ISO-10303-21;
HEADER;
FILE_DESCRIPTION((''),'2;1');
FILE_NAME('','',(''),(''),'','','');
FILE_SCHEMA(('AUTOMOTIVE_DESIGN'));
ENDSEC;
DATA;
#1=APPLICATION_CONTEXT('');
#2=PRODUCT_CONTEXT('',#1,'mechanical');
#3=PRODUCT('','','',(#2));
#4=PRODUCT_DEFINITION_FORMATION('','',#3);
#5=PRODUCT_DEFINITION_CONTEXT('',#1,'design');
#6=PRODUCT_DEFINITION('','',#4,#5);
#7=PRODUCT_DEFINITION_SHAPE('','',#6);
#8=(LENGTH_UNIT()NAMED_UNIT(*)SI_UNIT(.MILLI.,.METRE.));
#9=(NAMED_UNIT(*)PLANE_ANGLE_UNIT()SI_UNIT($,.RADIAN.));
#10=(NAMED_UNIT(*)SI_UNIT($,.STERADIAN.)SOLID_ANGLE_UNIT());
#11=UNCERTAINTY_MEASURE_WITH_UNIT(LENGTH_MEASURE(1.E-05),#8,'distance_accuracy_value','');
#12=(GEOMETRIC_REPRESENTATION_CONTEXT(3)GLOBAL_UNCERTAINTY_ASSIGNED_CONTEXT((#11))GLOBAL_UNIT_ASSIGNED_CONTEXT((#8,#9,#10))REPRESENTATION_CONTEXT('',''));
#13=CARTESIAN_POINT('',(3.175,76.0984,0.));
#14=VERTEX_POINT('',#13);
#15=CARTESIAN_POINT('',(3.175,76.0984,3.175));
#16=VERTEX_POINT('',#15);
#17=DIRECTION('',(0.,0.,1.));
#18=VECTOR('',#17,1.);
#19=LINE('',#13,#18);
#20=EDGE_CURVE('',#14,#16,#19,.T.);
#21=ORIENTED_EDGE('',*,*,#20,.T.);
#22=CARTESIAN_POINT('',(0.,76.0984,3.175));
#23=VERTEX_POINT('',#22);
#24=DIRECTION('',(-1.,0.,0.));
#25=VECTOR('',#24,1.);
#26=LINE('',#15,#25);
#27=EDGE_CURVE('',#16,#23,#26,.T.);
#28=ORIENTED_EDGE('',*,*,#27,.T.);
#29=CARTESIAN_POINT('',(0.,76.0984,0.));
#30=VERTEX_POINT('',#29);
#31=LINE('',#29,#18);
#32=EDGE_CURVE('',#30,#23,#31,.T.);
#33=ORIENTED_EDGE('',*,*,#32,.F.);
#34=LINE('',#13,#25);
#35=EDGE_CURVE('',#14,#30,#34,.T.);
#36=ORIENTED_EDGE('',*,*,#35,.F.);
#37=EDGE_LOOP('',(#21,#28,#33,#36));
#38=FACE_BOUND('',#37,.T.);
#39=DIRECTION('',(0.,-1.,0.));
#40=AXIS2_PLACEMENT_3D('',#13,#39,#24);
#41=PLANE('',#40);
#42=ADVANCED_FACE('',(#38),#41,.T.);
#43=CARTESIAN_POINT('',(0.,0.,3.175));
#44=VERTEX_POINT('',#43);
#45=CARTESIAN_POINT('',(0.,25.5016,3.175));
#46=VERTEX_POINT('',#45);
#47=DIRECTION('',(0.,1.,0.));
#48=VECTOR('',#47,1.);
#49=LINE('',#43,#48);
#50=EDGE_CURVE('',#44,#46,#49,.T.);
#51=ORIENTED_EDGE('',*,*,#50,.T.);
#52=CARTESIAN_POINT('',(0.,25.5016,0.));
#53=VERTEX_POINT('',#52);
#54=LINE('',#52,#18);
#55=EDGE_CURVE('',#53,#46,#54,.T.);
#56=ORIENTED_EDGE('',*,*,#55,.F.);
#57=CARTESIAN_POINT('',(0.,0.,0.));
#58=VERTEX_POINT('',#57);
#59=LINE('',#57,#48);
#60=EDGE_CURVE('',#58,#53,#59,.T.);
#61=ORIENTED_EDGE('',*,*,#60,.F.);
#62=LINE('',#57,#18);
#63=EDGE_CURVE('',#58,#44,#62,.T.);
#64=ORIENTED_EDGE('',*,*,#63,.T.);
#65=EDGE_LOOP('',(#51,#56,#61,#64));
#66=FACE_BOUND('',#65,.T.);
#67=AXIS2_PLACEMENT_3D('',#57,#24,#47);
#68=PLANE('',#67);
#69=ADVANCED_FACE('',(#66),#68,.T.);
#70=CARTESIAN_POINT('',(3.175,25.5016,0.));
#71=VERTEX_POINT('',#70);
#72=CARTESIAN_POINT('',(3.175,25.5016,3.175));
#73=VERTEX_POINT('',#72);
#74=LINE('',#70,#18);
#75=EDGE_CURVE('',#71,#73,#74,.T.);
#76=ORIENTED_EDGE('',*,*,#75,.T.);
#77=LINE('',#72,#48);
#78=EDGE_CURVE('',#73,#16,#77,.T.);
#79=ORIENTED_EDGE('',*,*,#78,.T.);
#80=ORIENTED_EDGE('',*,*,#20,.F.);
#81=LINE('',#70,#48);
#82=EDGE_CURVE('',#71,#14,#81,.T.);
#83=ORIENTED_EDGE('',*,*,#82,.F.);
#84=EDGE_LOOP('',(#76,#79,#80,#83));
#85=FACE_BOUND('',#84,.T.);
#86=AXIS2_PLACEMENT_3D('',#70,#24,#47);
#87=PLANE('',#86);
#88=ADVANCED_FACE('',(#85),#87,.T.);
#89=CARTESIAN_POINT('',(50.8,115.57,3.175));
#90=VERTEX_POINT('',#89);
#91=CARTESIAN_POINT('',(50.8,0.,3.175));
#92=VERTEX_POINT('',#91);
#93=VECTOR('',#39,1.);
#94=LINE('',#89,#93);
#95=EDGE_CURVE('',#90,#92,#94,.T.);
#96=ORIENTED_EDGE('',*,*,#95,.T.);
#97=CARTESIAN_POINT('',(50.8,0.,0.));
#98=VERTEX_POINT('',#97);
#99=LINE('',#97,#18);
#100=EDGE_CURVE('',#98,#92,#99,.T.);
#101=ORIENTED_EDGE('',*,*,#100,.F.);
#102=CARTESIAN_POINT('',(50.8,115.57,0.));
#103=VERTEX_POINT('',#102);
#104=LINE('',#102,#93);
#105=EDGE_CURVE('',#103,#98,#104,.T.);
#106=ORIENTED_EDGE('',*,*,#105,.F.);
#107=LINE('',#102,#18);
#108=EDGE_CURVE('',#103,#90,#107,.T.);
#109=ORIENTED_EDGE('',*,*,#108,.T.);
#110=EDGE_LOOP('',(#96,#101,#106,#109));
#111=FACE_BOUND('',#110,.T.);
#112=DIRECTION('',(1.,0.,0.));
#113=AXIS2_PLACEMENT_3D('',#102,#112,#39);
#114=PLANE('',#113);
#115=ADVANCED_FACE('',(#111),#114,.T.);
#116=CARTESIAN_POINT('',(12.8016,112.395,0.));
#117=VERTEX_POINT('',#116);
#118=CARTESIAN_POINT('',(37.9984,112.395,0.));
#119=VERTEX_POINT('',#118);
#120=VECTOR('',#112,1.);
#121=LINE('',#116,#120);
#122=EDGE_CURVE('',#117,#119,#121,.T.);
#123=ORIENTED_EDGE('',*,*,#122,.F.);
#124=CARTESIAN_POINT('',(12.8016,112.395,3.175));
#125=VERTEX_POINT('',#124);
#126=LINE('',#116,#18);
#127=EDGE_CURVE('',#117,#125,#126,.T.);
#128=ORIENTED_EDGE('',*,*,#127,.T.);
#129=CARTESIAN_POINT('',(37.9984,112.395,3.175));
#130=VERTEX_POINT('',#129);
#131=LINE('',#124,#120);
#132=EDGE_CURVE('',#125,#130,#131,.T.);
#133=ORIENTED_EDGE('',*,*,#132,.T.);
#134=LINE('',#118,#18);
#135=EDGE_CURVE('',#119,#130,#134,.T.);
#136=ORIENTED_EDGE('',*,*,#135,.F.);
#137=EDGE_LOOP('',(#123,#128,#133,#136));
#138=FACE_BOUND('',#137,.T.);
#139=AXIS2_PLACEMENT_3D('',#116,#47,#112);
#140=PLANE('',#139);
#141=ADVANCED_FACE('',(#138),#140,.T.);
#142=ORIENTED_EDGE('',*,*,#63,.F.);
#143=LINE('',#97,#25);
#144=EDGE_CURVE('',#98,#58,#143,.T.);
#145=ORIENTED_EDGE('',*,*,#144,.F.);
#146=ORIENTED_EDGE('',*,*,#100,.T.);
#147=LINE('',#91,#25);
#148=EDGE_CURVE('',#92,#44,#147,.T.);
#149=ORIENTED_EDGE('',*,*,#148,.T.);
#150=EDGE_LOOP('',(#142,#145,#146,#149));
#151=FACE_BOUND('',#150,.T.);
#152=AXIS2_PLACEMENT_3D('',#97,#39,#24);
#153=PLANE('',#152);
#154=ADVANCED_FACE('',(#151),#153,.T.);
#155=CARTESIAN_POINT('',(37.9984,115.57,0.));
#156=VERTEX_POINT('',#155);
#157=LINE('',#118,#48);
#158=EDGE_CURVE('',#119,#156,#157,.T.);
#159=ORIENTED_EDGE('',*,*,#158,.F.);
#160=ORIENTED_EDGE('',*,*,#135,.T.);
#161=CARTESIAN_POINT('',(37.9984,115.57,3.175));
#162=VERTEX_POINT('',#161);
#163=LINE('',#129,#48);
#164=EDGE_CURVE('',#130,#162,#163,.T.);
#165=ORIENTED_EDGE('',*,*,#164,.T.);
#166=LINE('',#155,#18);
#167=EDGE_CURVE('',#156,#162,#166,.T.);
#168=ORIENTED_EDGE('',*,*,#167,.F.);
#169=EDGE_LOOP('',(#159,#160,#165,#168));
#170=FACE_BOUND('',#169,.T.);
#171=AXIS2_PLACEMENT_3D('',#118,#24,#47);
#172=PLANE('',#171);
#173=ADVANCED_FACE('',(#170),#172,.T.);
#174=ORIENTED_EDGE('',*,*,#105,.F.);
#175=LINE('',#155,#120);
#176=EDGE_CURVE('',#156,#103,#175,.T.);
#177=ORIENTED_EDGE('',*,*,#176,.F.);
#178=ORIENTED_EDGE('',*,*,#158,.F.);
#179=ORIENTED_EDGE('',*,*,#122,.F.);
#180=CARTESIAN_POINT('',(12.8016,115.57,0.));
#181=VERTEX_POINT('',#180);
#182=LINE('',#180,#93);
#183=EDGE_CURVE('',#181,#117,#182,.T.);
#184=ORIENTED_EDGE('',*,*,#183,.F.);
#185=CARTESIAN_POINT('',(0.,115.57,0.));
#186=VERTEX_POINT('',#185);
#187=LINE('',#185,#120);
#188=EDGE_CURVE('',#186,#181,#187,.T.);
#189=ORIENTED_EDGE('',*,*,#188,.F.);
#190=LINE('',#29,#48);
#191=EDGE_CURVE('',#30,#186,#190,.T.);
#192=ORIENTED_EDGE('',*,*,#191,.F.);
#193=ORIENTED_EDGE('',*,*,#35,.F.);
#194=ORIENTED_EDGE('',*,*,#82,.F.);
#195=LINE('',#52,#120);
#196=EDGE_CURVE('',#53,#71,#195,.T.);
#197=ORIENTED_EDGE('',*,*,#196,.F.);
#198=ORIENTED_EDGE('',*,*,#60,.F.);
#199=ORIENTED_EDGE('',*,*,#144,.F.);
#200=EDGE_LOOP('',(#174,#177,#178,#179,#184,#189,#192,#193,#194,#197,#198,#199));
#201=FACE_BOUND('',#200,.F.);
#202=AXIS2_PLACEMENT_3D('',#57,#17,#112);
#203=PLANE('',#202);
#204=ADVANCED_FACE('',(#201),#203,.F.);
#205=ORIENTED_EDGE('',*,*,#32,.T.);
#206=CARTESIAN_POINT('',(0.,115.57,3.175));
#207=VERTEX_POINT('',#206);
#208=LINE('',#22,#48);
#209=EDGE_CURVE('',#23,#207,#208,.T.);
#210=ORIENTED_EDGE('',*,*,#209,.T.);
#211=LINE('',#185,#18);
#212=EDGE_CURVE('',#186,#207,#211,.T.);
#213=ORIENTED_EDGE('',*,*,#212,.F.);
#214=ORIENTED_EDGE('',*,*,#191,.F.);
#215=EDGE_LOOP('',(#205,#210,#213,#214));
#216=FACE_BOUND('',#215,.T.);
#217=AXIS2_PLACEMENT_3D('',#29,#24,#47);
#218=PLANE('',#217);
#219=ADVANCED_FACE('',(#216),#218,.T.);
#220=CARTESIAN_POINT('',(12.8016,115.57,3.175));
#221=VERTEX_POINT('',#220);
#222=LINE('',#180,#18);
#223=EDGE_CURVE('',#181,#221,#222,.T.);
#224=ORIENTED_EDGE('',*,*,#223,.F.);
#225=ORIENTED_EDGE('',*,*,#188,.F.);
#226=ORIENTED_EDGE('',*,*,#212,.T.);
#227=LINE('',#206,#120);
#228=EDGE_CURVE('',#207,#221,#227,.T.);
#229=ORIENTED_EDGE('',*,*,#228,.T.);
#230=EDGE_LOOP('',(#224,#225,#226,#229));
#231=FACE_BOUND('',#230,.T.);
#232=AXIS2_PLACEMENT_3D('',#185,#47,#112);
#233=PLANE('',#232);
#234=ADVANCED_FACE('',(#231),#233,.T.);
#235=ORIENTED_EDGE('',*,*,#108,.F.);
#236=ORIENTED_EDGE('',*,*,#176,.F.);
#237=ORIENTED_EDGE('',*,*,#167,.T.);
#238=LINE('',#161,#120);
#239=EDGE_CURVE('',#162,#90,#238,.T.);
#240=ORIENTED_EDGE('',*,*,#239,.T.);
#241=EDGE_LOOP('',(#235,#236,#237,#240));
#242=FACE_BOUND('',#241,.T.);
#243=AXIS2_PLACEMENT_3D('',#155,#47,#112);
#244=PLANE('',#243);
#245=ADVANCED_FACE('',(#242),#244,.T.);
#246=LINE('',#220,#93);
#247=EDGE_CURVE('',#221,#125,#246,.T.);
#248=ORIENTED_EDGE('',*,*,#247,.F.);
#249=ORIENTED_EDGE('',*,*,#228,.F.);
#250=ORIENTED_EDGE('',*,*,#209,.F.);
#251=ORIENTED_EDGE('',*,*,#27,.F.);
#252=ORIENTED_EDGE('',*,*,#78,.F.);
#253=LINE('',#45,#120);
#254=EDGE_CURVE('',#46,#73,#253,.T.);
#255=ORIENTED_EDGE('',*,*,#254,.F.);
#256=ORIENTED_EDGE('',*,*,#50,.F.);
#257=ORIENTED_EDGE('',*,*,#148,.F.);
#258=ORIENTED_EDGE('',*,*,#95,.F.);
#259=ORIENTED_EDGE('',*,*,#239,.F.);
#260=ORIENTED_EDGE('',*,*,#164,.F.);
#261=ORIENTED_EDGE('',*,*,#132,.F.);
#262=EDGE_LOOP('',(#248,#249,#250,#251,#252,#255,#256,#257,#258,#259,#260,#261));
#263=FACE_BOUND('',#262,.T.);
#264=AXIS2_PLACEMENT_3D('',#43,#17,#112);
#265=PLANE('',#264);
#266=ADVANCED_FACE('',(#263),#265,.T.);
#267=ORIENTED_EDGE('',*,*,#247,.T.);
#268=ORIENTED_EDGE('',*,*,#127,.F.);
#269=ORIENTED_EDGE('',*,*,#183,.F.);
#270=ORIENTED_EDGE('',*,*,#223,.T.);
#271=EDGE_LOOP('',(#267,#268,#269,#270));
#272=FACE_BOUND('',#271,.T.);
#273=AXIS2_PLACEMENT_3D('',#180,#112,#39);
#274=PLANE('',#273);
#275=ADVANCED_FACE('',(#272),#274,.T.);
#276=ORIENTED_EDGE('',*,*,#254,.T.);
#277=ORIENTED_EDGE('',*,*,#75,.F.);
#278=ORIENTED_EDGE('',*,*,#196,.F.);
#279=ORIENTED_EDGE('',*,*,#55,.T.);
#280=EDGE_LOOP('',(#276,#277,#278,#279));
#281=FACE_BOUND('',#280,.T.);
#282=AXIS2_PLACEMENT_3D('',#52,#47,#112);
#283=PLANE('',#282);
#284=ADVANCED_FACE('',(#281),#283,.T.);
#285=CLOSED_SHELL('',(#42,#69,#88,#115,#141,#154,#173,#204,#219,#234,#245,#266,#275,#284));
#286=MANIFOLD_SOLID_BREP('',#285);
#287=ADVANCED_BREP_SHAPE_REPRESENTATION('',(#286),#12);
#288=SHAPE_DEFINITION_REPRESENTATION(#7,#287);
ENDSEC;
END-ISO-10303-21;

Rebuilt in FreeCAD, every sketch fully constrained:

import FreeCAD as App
import Part
import Sketcher
Q = App.Units.Quantity


def add_polygon(sketch, points):
    """Adds a closed chain of lines whose ends are joined by coincident constraints."""
    first, n = sketch.GeometryCount, len(points)
    for a, b in zip(points, points[1:] + points[:1]):
        sketch.addGeometry(Part.LineSegment(App.Vector(*a, 0), App.Vector(*b, 0)), False)
    for i in range(n):
        sketch.addConstraint(Sketcher.Constraint("Coincident", first + i, 2, first + (i + 1) % n, 1))

doc = App.newDocument("Part")
body = doc.addObject("PartDesign::Body", "Body")

sketch1 = body.newObject("Sketcher::SketchObject", "Sketch")
sketch1.AttachmentSupport = (doc.getObject("XY_Plane"), [""])
sketch1.MapMode = "FlatFace"
add_polygon(sketch1, [(50.8, 0), (50.8, 115.57), (37.9984, 115.57), (37.9984, 112.395), (12.8016, 112.395), (12.8016, 115.57), (0, 115.57), (0, 76.0984), (3.175, 76.0984), (3.175, 25.5016), (0, 25.5016), (0, 0)])
sketch1.addConstraint(Sketcher.Constraint("Vertical", 0))
sketch1.addConstraint(Sketcher.Constraint("Horizontal", 1))
sketch1.addConstraint(Sketcher.Constraint("Vertical", 2))
sketch1.addConstraint(Sketcher.Constraint("Horizontal", 3))
sketch1.addConstraint(Sketcher.Constraint("Vertical", 4))
sketch1.addConstraint(Sketcher.Constraint("Horizontal", 5))
sketch1.addConstraint(Sketcher.Constraint("Vertical", 6))
sketch1.addConstraint(Sketcher.Constraint("Horizontal", 7))
sketch1.addConstraint(Sketcher.Constraint("Vertical", 8))
sketch1.addConstraint(Sketcher.Constraint("Horizontal", 9))
sketch1.addConstraint(Sketcher.Constraint("Vertical", 10))
sketch1.addConstraint(Sketcher.Constraint("Horizontal", 11))
sketch1.addConstraint(Sketcher.Constraint("Coincident", 10, 2, -1, 1))
sketch1.addConstraint(Sketcher.Constraint("PointOnObject", 5, 2, -2))
sketch1.addConstraint(Sketcher.Constraint("Horizontal", 1, 2, 4, 2))
sketch1.addConstraint(Sketcher.Constraint("Equal", 1, 5))
sketch1.addConstraint(Sketcher.Constraint("Equal", 9, 2))
sketch1.addConstraint(Sketcher.Constraint("DistanceX", 11, 1, 11, 2, Q("2 in")))
sketch1.addConstraint(Sketcher.Constraint("DistanceY", 0, 1, 0, 2, Q("4.55 in")))
sketch1.addConstraint(Sketcher.Constraint("DistanceX", 1, 2, 1, 1, Q("0.504 in")))
sketch1.addConstraint(Sketcher.Constraint("DistanceX", 7, 1, 7, 2, Q("0.125 in")))
sketch1.addConstraint(Sketcher.Constraint("DistanceY", 8, 2, 8, 1, Q("1.992 in")))
sketch1.addConstraint(Sketcher.Constraint("DistanceY", 10, 2, 10, 1, Q("1.004 in")))
pad1 = body.newObject("PartDesign::Pad", "Pad")
pad1.Profile = sketch1
pad1.Length = Q("0.125 in")

doc.recompute()
